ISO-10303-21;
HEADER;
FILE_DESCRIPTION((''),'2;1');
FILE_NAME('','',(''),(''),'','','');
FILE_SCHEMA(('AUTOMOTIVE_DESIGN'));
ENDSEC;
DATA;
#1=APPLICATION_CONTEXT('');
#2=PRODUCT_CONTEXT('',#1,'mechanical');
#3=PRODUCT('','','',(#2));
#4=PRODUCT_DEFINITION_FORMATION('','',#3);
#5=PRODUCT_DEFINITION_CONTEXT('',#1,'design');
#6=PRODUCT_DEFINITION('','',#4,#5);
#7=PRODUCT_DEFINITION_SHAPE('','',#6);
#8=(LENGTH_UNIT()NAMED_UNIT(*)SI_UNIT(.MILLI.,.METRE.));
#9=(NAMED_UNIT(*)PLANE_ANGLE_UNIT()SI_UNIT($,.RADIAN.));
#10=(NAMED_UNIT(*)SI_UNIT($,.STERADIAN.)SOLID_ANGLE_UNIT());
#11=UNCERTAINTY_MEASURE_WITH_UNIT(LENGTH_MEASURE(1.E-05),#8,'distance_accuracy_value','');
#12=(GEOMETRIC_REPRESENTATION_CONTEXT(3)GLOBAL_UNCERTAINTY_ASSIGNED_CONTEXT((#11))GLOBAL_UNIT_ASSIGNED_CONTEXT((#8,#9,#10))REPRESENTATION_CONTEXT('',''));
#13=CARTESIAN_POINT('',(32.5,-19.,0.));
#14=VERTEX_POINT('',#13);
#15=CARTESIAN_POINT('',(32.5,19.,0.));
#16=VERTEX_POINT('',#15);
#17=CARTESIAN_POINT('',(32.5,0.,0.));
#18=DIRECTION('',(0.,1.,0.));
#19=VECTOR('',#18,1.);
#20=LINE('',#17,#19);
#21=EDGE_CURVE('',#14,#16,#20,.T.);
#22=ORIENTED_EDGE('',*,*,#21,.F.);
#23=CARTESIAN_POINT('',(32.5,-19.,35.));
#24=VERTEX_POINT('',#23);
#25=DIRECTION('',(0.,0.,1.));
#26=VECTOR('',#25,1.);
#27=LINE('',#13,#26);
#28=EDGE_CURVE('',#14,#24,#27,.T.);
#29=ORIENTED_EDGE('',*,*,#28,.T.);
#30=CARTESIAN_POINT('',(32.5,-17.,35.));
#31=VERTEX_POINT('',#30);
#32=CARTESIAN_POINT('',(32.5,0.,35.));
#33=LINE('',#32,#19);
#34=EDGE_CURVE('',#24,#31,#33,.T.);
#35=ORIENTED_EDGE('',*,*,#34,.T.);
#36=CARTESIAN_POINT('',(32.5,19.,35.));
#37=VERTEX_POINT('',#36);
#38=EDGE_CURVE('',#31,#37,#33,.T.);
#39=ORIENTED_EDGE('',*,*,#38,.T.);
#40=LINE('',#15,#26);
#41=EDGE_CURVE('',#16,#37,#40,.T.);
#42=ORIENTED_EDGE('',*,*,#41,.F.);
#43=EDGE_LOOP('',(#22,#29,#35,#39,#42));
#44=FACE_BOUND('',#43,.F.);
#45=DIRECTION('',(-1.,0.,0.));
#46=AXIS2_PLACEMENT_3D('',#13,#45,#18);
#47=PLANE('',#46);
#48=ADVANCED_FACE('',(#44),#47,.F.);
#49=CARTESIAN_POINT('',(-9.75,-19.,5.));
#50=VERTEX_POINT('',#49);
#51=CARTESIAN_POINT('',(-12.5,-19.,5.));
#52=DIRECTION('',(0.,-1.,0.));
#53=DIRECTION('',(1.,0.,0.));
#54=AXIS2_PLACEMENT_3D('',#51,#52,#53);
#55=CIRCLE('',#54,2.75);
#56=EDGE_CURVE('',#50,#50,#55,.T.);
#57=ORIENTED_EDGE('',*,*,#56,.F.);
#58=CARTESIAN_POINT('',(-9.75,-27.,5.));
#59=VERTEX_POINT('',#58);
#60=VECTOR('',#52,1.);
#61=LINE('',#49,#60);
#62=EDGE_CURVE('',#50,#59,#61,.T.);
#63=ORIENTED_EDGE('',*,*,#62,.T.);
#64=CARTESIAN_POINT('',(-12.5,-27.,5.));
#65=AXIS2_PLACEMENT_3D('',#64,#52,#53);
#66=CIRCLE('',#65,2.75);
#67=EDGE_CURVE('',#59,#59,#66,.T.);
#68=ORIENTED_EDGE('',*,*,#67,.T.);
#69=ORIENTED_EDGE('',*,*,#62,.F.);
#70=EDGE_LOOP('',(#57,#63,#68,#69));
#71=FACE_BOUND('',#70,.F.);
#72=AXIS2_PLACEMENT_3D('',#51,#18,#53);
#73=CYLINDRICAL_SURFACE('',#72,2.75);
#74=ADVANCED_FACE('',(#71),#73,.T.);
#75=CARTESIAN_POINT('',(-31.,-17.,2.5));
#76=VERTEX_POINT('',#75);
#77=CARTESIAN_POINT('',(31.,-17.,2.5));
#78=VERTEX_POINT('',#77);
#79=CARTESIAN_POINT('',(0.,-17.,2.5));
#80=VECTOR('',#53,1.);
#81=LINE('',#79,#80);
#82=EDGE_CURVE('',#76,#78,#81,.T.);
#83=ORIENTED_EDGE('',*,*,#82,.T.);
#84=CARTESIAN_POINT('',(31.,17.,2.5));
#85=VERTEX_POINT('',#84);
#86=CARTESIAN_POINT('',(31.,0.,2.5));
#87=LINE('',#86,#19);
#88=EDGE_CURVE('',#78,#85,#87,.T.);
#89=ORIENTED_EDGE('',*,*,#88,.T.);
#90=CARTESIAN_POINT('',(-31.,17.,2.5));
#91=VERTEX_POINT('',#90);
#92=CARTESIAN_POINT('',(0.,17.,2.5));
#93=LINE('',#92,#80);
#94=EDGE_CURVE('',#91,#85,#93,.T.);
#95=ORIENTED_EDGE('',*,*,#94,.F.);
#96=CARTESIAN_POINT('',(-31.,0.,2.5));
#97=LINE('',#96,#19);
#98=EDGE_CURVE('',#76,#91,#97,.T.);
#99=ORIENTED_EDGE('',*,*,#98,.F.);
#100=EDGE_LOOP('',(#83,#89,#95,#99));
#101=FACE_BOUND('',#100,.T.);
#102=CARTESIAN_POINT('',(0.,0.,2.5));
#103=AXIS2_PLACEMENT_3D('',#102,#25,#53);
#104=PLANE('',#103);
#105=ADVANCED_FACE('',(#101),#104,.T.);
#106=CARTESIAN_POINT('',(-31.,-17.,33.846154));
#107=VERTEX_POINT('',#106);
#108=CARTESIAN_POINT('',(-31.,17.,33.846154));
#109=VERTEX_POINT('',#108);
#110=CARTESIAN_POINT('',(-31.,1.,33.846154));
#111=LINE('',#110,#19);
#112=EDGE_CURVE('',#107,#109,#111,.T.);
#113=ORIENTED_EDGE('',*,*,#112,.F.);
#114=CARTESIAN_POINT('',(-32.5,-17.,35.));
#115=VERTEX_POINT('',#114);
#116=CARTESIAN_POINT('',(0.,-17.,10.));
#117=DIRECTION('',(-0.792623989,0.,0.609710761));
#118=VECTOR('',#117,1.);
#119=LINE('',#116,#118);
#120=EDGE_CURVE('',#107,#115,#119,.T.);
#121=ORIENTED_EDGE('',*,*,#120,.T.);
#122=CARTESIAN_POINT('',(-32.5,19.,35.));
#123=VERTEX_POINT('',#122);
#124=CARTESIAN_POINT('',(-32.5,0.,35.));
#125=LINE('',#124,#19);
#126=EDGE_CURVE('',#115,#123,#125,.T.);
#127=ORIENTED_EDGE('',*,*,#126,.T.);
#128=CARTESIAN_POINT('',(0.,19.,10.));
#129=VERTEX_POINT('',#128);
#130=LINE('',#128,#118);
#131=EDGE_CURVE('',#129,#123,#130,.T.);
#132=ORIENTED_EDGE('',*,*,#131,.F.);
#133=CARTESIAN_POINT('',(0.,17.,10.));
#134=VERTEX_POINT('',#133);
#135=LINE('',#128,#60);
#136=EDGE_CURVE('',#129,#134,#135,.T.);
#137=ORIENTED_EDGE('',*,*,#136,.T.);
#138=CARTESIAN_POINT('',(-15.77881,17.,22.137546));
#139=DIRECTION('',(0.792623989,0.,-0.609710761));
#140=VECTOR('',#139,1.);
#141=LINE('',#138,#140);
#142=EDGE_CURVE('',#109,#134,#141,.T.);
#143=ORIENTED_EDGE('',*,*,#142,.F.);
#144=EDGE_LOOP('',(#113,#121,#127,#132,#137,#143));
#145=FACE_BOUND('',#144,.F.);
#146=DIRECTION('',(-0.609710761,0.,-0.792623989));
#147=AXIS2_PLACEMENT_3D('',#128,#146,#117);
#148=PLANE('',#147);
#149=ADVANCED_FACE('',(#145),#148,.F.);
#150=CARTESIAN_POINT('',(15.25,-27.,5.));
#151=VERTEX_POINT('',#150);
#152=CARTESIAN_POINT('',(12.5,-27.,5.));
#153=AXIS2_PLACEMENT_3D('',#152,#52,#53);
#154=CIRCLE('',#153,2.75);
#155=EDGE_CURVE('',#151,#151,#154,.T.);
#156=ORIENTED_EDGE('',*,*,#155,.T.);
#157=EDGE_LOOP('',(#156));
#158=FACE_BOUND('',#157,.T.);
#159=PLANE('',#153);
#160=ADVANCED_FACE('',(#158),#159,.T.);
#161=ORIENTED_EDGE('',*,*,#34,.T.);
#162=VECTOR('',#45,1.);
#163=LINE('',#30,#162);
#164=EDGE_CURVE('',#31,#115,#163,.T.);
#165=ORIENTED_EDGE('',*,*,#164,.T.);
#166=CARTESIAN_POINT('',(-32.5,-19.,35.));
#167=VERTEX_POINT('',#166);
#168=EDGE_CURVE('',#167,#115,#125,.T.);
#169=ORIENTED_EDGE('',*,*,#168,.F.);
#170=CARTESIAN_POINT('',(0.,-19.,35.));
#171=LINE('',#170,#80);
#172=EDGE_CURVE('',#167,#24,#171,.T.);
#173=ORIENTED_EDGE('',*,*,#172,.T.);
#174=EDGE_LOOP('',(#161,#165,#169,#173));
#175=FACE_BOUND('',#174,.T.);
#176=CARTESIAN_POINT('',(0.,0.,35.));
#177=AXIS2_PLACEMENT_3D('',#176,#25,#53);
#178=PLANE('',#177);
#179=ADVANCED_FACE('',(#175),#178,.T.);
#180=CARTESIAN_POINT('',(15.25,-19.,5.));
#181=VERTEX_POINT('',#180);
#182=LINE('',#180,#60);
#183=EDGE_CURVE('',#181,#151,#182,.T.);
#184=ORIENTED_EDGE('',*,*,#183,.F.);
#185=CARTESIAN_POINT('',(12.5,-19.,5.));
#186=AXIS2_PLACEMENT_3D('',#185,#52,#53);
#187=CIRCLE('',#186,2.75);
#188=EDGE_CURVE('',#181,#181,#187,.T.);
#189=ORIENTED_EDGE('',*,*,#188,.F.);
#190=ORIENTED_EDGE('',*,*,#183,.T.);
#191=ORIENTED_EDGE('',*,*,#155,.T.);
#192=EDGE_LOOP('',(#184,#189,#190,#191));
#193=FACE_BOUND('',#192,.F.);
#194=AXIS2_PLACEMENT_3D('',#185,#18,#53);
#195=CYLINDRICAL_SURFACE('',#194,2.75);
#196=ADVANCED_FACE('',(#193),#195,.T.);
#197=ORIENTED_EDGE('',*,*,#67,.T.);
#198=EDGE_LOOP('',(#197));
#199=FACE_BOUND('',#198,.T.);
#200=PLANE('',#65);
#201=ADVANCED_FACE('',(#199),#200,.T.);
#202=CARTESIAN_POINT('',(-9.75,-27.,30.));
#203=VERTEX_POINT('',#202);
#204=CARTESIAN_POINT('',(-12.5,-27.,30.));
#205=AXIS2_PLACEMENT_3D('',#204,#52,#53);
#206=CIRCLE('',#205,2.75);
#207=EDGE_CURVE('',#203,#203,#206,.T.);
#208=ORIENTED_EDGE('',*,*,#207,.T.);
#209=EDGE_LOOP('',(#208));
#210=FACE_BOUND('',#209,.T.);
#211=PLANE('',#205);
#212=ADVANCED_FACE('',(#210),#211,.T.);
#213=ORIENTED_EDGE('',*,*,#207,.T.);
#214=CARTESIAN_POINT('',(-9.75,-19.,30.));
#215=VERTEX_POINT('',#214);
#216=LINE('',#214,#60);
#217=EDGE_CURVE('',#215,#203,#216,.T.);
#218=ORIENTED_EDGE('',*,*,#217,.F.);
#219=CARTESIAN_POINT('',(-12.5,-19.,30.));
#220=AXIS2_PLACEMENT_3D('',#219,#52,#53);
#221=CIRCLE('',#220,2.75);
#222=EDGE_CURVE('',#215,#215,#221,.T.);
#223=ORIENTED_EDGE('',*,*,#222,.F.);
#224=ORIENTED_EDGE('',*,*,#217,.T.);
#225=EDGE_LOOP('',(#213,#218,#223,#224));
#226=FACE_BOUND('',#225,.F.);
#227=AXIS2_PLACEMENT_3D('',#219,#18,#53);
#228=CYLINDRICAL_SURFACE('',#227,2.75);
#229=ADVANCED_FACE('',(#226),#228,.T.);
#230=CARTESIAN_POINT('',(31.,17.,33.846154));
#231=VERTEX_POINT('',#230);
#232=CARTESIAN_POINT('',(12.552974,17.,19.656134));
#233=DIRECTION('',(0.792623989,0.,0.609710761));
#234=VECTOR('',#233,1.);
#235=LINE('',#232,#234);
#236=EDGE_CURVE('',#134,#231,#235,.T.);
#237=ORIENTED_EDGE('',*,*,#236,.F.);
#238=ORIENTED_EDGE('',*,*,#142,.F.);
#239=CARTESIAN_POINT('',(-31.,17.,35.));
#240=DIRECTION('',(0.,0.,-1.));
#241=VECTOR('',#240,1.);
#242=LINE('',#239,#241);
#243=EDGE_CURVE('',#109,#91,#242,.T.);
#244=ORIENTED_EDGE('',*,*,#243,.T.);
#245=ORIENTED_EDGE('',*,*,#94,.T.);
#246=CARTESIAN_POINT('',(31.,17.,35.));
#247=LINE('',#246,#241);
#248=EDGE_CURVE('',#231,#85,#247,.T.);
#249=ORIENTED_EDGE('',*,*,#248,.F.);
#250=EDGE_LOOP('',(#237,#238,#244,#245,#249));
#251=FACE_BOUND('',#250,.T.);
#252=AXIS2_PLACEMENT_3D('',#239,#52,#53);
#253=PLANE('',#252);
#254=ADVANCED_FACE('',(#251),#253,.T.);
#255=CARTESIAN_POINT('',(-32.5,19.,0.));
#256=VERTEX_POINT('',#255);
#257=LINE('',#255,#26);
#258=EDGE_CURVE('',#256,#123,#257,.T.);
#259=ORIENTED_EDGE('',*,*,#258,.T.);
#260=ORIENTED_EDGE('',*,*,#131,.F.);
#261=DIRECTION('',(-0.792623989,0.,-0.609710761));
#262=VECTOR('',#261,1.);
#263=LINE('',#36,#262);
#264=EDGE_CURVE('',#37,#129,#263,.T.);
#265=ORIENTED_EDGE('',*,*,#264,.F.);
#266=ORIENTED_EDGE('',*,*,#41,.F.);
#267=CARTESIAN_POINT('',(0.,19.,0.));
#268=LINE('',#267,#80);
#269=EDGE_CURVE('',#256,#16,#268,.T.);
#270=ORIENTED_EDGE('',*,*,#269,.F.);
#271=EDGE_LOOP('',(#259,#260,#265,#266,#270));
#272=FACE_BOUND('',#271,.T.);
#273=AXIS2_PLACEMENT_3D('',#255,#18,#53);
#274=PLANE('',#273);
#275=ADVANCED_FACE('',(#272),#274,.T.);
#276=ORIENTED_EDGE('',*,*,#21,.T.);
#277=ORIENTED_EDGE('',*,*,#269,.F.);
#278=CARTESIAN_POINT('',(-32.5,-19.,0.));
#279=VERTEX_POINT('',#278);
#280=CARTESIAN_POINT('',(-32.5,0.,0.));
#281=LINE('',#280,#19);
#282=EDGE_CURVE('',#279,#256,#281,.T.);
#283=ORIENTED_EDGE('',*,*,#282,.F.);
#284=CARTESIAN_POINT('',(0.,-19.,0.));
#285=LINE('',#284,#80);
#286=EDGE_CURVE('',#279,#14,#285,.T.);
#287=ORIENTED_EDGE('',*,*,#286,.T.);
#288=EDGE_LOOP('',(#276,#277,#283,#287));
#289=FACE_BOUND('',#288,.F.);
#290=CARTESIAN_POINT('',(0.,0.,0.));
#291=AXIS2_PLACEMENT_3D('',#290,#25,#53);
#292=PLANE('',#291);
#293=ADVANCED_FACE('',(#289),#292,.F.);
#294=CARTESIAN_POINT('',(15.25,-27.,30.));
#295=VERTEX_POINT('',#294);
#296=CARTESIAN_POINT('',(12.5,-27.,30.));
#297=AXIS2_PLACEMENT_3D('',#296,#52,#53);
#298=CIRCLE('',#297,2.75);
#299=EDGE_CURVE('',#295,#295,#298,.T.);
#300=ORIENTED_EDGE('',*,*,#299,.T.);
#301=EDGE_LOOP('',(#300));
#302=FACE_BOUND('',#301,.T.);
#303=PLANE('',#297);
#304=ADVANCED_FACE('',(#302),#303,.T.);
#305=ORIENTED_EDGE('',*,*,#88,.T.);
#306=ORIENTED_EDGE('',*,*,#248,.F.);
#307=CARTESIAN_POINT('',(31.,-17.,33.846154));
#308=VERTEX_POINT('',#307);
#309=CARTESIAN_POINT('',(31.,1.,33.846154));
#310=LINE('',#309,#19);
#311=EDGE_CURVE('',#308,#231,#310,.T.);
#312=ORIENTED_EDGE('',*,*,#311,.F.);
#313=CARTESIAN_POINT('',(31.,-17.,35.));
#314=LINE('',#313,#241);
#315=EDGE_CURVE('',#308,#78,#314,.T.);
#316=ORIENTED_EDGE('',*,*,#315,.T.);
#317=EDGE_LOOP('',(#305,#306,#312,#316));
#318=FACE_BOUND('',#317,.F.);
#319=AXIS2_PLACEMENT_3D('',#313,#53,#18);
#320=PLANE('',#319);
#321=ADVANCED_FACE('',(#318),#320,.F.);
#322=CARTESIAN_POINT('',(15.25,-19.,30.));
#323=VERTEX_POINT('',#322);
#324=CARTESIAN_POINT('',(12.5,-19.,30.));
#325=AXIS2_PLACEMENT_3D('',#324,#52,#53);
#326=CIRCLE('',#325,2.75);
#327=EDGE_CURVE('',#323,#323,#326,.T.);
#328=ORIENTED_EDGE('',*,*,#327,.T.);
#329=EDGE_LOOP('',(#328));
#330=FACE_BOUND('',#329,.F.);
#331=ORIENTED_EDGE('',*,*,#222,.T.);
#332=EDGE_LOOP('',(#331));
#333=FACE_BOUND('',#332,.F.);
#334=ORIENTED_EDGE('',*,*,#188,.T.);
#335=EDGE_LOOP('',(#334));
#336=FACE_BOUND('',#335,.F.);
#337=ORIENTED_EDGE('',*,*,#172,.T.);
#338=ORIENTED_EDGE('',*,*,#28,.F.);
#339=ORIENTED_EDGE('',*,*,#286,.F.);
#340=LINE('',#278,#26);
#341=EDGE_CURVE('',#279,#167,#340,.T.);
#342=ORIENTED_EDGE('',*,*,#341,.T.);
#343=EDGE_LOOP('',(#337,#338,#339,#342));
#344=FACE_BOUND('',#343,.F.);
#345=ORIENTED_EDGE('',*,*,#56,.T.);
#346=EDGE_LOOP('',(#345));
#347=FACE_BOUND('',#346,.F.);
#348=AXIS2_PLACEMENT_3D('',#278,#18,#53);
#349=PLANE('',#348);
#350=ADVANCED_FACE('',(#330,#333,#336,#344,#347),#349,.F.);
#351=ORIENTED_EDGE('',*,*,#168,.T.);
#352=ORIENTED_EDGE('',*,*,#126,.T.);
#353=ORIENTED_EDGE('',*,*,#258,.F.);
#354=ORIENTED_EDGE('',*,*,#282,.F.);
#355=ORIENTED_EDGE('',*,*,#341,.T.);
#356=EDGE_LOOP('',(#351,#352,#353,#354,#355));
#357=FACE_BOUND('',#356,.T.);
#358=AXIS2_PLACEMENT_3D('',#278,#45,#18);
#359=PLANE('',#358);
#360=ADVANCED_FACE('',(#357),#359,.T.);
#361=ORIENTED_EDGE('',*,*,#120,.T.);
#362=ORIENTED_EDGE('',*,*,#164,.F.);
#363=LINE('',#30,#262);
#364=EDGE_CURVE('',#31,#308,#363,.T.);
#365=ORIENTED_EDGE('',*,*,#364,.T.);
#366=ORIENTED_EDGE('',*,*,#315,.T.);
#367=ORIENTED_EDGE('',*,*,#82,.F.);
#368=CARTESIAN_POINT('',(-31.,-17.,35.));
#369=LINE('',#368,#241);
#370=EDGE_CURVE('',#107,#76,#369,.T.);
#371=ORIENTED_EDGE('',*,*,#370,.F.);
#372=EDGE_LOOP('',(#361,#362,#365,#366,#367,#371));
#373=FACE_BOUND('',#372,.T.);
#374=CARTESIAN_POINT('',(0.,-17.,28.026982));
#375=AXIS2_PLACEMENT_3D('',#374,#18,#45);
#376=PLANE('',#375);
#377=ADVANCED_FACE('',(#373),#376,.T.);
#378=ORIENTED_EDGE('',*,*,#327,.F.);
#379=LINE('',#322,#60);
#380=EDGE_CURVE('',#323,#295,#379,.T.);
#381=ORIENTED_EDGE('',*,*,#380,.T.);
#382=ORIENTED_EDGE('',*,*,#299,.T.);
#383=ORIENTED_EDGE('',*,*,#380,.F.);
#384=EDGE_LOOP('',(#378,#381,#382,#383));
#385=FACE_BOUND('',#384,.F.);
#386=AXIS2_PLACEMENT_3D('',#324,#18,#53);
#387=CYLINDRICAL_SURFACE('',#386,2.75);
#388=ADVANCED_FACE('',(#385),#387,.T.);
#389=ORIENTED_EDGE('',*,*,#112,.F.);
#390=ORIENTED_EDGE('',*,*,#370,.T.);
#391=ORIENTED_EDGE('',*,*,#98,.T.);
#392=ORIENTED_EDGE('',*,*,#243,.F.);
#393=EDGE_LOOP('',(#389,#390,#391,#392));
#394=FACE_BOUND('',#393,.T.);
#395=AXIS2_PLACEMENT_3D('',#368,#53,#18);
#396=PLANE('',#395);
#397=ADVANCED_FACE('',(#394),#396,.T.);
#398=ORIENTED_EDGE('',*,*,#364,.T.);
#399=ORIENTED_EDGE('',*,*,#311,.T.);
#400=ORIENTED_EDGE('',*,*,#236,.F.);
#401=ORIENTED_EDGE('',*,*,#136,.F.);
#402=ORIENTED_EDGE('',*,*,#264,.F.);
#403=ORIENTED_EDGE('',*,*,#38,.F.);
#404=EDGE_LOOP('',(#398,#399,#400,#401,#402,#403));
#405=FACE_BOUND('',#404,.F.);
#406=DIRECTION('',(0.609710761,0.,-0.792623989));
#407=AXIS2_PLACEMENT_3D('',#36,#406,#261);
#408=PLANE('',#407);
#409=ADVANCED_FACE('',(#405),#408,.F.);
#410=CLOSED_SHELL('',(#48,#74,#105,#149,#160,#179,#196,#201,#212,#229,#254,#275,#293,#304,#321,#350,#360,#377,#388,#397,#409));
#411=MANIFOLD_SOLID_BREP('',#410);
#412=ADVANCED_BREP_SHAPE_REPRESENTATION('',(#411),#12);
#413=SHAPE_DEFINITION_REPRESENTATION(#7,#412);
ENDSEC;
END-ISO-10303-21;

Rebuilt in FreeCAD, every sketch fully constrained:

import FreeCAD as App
import Part
import Sketcher
from FreeCAD import Vector
Q = App.Units.Quantity

doc = App.newDocument("Part")
body = doc.addObject("PartDesign::Body", "Body")

sketch1 = doc.addObject("Sketcher::SketchObject", "Sketch")
body.addObject(sketch1)
sketch1.AttachmentSupport = (doc.XY_Plane, [""])
sketch1.MapMode = "FlatFace"
sketch1.addGeometry(Part.LineSegment(Vector(-32.5, 19, 0), Vector(-32.5, -19, 0)), False)
sketch1.addGeometry(Part.LineSegment(Vector(-32.5, -19, 0), Vector(32.5, -19, 0)), False)
sketch1.addGeometry(Part.LineSegment(Vector(32.5, -19, 0), Vector(32.5, 19, 0)), False)
sketch1.addGeometry(Part.LineSegment(Vector(32.5, 19, 0), Vector(-32.5, 19, 0)), False)
sketch1.addConstraint(Sketcher.Constraint("Coincident", 0, 2, 1, 1))
sketch1.addConstraint(Sketcher.Constraint("Coincident", 1, 2, 2, 1))
sketch1.addConstraint(Sketcher.Constraint("Coincident", 2, 2, 3, 1))
sketch1.addConstraint(Sketcher.Constraint("Coincident", 3, 2, 0, 1))
sketch1.addConstraint(Sketcher.Constraint("Vertical", 0))
sketch1.addConstraint(Sketcher.Constraint("Horizontal", 1))
sketch1.addConstraint(Sketcher.Constraint("Vertical", 2))
sketch1.addConstraint(Sketcher.Constraint("Horizontal", 3))
sketch1.addConstraint(Sketcher.Constraint("Symmetric", 0, 2, 2, 2, -1, 1))
sketch1.addConstraint(Sketcher.Constraint("DistanceX", 1, 1, 1, 2, Q("65 mm")))
sketch1.addConstraint(Sketcher.Constraint("DistanceY", 0, 2, 0, 1, Q("38 mm")))
pad1 = doc.addObject("PartDesign::Pad", "Pad")
body.addObject(pad1)
pad1.Profile = sketch1
pad1.Length = 35

sketch2 = doc.addObject("Sketcher::SketchObject", "Sketch001")
body.addObject(sketch2)
sketch2.AttachmentSupport = (doc.XY_Plane, [""])
sketch2.MapMode = "FlatFace"
sketch2.AttachmentOffset = App.Placement(Vector(0, 0, 35), App.Rotation())
sketch2.addGeometry(Part.LineSegment(Vector(-31, 17, 0), Vector(-31, -17, 0)), False)
sketch2.addGeometry(Part.LineSegment(Vector(-31, -17, 0), Vector(31, -17, 0)), False)
sketch2.addGeometry(Part.LineSegment(Vector(31, -17, 0), Vector(31, 17, 0)), False)
sketch2.addGeometry(Part.LineSegment(Vector(31, 17, 0), Vector(-31, 17, 0)), False)
sketch2.addConstraint(Sketcher.Constraint("Coincident", 0, 2, 1, 1))
sketch2.addConstraint(Sketcher.Constraint("Coincident", 1, 2, 2, 1))
sketch2.addConstraint(Sketcher.Constraint("Coincident", 2, 2, 3, 1))
sketch2.addConstraint(Sketcher.Constraint("Coincident", 3, 2, 0, 1))
sketch2.addConstraint(Sketcher.Constraint("Vertical", 0))
sketch2.addConstraint(Sketcher.Constraint("Horizontal", 1))
sketch2.addConstraint(Sketcher.Constraint("Vertical", 2))
sketch2.addConstraint(Sketcher.Constraint("Horizontal", 3))
sketch2.addConstraint(Sketcher.Constraint("Symmetric", 0, 2, 2, 2, -1, 1))
sketch2.addConstraint(Sketcher.Constraint("DistanceX", 1, 1, 1, 2, Q("62 mm")))
sketch2.addConstraint(Sketcher.Constraint("DistanceY", 0, 2, 0, 1, Q("34 mm")))
pocket1 = doc.addObject("PartDesign::Pocket", "Pocket")
body.addObject(pocket1)
pocket1.Profile = sketch2
pocket1.Length = 32.5

sketch3 = doc.addObject("Sketcher::SketchObject", "Sketch002")
body.addObject(sketch3)
sketch3.AttachmentSupport = (doc.XZ_Plane, [""])
sketch3.MapMode = "FlatFace"
sketch3.AttachmentOffset = App.Placement(Vector(0, 0, 19), App.Rotation())
sketch3.addGeometry(Part.Circle(Vector(-12.5, 5, 0), Vector(0, 0, 1), 2.75), False)
sketch3.addGeometry(Part.Circle(Vector(-12.5, 30, 0), Vector(0, 0, 1), 2.75), False)
sketch3.addGeometry(Part.Circle(Vector(12.5, 30, 0), Vector(0, 0, 1), 2.75), False)
sketch3.addGeometry(Part.Circle(Vector(12.5, 5, 0), Vector(0, 0, 1), 2.75), False)
sketch3.addConstraint(Sketcher.Constraint("Equal", 0, 1))
sketch3.addConstraint(Sketcher.Constraint("Equal", 1, 2))
sketch3.addConstraint(Sketcher.Constraint("Equal", 2, 3))
sketch3.addConstraint(Sketcher.Constraint("Symmetric", 1, 3, 2, 3, -2))
sketch3.addConstraint(Sketcher.Constraint("Symmetric", 0, 3, 3, 3, -2))
sketch3.addConstraint(Sketcher.Constraint("Vertical", 0, 3, 1, 3))
sketch3.addConstraint(Sketcher.Constraint("Diameter", 0, Q("5.5 mm")))
sketch3.addConstraint(Sketcher.Constraint("DistanceY", -1, 1, 0, 3, Q("5 mm")))
sketch3.addConstraint(Sketcher.Constraint("DistanceY", -1, 1, 1, 3, Q("30 mm")))
sketch3.addConstraint(Sketcher.Constraint("DistanceX", 1, 3, 2, 3, Q("25 mm")))
pad2 = doc.addObject("PartDesign::Pad", "Pad001")
body.addObject(pad2)
pad2.Profile = sketch3
pad2.Length = 8

sketch4 = doc.addObject("Sketcher::SketchObject", "Sketch003")
body.addObject(sketch4)
sketch4.AttachmentSupport = (doc.XZ_Plane, [""])
sketch4.MapMode = "FlatFace"
sketch4.AttachmentOffset = App.Placement(Vector(0, 0, -19), App.Rotation())
sketch4.addGeometry(Part.LineSegment(Vector(-32.5, 35, 0), Vector(32.5, 35, 0)), False)
sketch4.addGeometry(Part.LineSegment(Vector(32.5, 35, 0), Vector(0, 10, 0)), False)
sketch4.addGeometry(Part.LineSegment(Vector(0, 10, 0), Vector(-32.5, 35, 0)), False)
sketch4.addConstraint(Sketcher.Constraint("Coincident", 0, 2, 1, 1))
sketch4.addConstraint(Sketcher.Constraint("Coincident", 1, 2, 2, 1))
sketch4.addConstraint(Sketcher.Constraint("Coincident", 2, 2, 0, 1))
sketch4.addConstraint(Sketcher.Constraint("Horizontal", 0))
sketch4.addConstraint(Sketcher.Constraint("PointOnObject", 1, 2, -2))
sketch4.addConstraint(Sketcher.Constraint("Equal", 1, 2))
sketch4.addConstraint(Sketcher.Constraint("DistanceX", 0, 1, 0, 2, Q("65 mm")))
sketch4.addConstraint(Sketcher.Constraint("DistanceY", -1, 1, 0, 2, Q("35 mm")))
sketch4.addConstraint(Sketcher.Constraint("DistanceY", -1, 1, 1, 2, Q("10 mm")))
pocket2 = doc.addObject("PartDesign::Pocket", "Pocket001")
body.addObject(pocket2)
pocket2.Profile = sketch4
pocket2.Length = 36
pocket2.Reversed = True

doc.recompute()
